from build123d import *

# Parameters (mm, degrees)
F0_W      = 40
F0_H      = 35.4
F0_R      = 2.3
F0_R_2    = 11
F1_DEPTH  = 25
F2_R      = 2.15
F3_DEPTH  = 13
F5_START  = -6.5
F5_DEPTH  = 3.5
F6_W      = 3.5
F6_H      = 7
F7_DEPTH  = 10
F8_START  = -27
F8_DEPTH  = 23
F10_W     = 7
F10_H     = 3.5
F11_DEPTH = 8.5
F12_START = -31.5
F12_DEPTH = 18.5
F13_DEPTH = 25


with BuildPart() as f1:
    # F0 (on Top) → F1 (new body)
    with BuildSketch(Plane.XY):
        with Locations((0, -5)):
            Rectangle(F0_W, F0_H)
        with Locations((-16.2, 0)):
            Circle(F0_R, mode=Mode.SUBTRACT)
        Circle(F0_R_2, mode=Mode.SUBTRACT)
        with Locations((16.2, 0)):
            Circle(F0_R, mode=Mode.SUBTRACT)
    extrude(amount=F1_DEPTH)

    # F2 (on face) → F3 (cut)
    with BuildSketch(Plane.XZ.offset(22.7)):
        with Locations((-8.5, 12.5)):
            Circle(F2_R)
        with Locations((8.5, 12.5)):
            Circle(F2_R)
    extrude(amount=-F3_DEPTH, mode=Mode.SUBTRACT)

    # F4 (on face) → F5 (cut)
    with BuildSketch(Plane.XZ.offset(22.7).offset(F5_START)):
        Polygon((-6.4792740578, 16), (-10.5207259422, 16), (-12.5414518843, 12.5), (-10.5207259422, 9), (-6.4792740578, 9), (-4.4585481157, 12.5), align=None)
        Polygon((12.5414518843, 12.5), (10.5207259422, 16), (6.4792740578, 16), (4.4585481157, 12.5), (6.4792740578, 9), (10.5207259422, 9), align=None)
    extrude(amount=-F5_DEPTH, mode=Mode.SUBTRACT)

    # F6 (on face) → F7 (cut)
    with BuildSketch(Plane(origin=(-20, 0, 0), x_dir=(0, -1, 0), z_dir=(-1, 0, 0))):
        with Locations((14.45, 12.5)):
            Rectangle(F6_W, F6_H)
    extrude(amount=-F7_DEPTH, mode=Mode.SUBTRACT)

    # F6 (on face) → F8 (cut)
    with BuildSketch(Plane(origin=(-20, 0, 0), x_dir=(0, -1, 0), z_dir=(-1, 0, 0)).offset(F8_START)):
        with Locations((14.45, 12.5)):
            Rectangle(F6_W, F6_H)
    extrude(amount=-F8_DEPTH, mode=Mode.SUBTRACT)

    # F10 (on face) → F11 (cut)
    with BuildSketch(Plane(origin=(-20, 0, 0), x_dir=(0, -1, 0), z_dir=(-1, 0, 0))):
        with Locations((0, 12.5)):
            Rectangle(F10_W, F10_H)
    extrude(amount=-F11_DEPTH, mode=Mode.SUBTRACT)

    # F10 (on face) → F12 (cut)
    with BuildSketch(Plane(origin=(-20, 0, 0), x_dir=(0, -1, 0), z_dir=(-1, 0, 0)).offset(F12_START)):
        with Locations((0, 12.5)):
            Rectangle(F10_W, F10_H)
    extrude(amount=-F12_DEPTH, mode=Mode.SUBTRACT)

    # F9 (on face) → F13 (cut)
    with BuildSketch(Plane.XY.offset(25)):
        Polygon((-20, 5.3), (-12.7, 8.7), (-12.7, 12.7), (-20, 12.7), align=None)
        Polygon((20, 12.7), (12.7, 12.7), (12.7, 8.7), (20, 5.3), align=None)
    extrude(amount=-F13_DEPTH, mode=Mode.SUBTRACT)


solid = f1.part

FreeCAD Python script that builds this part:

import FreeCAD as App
import Part
import Sketcher
Q = App.Units.Quantity

doc = App.newDocument("Part")
body = doc.addObject("PartDesign::Body", "Body")

# Sketch on XY plane
sketch1 = body.newObject("Sketcher::SketchObject", "Sketch")
sketch1.AttachmentSupport = (doc.getObject("XY_Plane"), [""])
sketch1.MapMode = "FlatFace"
sketch1.addGeometry(Part.LineSegment(App.Vector(-20, 12.7, 0), App.Vector(-20, -22.7, 0)), False)
sketch1.addGeometry(Part.LineSegment(App.Vector(-20, -22.7, 0), App.Vector(20, -22.7, 0)), False)
sketch1.addGeometry(Part.LineSegment(App.Vector(20, -22.7, 0), App.Vector(20, 12.7, 0)), False)
sketch1.addGeometry(Part.LineSegment(App.Vector(20, 12.7, 0), App.Vector(-20, 12.7, 0)), False)
sketch1.addGeometry(Part.Circle(App.Vector(-16.2, 0, 0), App.Vector(0, 0, 1), 2.3), False)
sketch1.addGeometry(Part.Circle(App.Vector(0, 0, 0), App.Vector(0, 0, 1), 11), False)
sketch1.addGeometry(Part.Circle(App.Vector(16.2, 0, 0), App.Vector(0, 0, 1), 2.3), False)
sketch1.addConstraint(Sketcher.Constraint("Coincident", 0, 2, 1, 1))
sketch1.addConstraint(Sketcher.Constraint("Coincident", 1, 2, 2, 1))
sketch1.addConstraint(Sketcher.Constraint("Coincident", 2, 2, 3, 1))
sketch1.addConstraint(Sketcher.Constraint("Coincident", 3, 2, 0, 1))
sketch1.addConstraint(Sketcher.Constraint("Vertical", 0))
sketch1.addConstraint(Sketcher.Constraint("Horizontal", 1))
sketch1.addConstraint(Sketcher.Constraint("Vertical", 2))
sketch1.addConstraint(Sketcher.Constraint("Horizontal", 3))
sketch1.addConstraint(Sketcher.Constraint("Coincident", 5, 3, -1, 1))
sketch1.addConstraint(Sketcher.Constraint("Equal", 4, 6))
sketch1.addConstraint(Sketcher.Constraint("Symmetric", 4, 3, 6, 3, -1, 1))
sketch1.addConstraint(Sketcher.Constraint("PointOnObject", 4, 3, -1))
sketch1.addConstraint(Sketcher.Constraint("Diameter", 5, 22.0))
sketch1.addConstraint(Sketcher.Constraint("Diameter", 4, 4.6))
sketch1.addConstraint(Sketcher.Constraint("DistanceX", 1, 1, 1, 2, 40.0))
sketch1.addConstraint(Sketcher.Constraint("DistanceY", 0, 2, 0, 1, 35.4))
sketch1.addConstraint(Sketcher.Constraint("DistanceX", 0, 2, -1, 1, 20.0))
sketch1.addConstraint(Sketcher.Constraint("DistanceX", 4, 3, -1, 1, 16.2))
sketch1.addConstraint(Sketcher.Constraint("DistanceY", 0, 2, -1, 1, 22.7))
pad1 = body.newObject("PartDesign::Pad", "Pad")
pad1.Profile = sketch1
pad1.Length = 25

# Sketch on XZ plane
sketch2 = body.newObject("Sketcher::SketchObject", "Sketch001")
sketch2.AttachmentSupport = (doc.getObject("XZ_Plane"), [""])
sketch2.MapMode = "FlatFace"
sketch2.AttachmentOffset = App.Placement(App.Vector(0, 0, 22.7), App.Rotation())
sketch2.addGeometry(Part.Circle(App.Vector(-8.5, 12.5, 0), App.Vector(0, 0, 1), 2.1), False)
sketch2.addGeometry(Part.Circle(App.Vector(8.5, 12.5, 0), App.Vector(0, 0, 1), 2.1), False)
sketch2.addConstraint(Sketcher.Constraint("Equal", 0, 1))
sketch2.addConstraint(Sketcher.Constraint("Symmetric", 0, 3, 1, 3, -2))
sketch2.addConstraint(Sketcher.Constraint("Diameter", 0, 4.3))
sketch2.addConstraint(Sketcher.Constraint("DistanceX", 0, 3, 1, 3, 17.0))
sketch2.addConstraint(Sketcher.Constraint("DistanceY", -1, 1, 0, 3, 12.5))
pocket1 = body.newObject("PartDesign::Pocket", "Pocket")
pocket1.Profile = sketch2
pocket1.Length = 13

# Sketch on XZ plane
sketch3 = body.newObject("Sketcher::SketchObject", "Sketch002")
sketch3.AttachmentSupport = (doc.getObject("XZ_Plane"), [""])
sketch3.MapMode = "FlatFace"
sketch3.AttachmentOffset = App.Placement(App.Vector(0, 0, 16.2), App.Rotation())
sketch3.addGeometry(Part.LineSegment(App.Vector(-6.5, 16, 0), App.Vector(-10.5, 16, 0)), False)
sketch3.addGeometry(Part.LineSegment(App.Vector(-10.5, 16, 0), App.Vector(-12.5, 12.5, 0)), False)
sketch3.addGeometry(Part.LineSegment(App.Vector(-12.5, 12.5, 0), App.Vector(-10.5, 9, 0)), False)
sketch3.addGeometry(Part.LineSegment(App.Vector(-10.5, 9, 0), App.Vector(-6.5, 9, 0)), False)
sketch3.addGeometry(Part.LineSegment(App.Vector(-6.5, 9, 0), App.Vector(-4.5, 12.5, 0)), False)
sketch3.addGeometry(Part.LineSegment(App.Vector(-4.5, 12.5, 0), App.Vector(-6.5, 16, 0)), False)
sketch3.addGeometry(Part.LineSegment(App.Vector(12.5, 12.5, 0), App.Vector(10.5, 16, 0)), False)
sketch3.addGeometry(Part.LineSegment(App.Vector(10.5, 16, 0), App.Vector(6.5, 16, 0)), False)
sketch3.addGeometry(Part.LineSegment(App.Vector(6.5, 16, 0), App.Vector(4.5, 12.5, 0)), False)
sketch3.addGeometry(Part.LineSegment(App.Vector(4.5, 12.5, 0), App.Vector(6.5, 9, 0)), False)
sketch3.addGeometry(Part.LineSegment(App.Vector(6.5, 9, 0), App.Vector(10.5, 9, 0)), False)
sketch3.addGeometry(Part.LineSegment(App.Vector(10.5, 9, 0), App.Vector(12.5, 12.5, 0)), False)
sketch3.addConstraint(Sketcher.Constraint("Coincident", 0, 2, 1, 1))
sketch3.addConstraint(Sketcher.Constraint("Coincident", 1, 2, 2, 1))
sketch3.addConstraint(Sketcher.Constraint("Coincident", 2, 2, 3, 1))
sketch3.addConstraint(Sketcher.Constraint("Coincident", 3, 2, 4, 1))
sketch3.addConstraint(Sketcher.Constraint("Coincident", 4, 2, 5, 1))
sketch3.addConstraint(Sketcher.Constraint("Coincident", 5, 2, 0, 1))
sketch3.addConstraint(Sketcher.Constraint("Coincident", 6, 2, 7, 1))
sketch3.addConstraint(Sketcher.Constraint("Coincident", 7, 2, 8, 1))
sketch3.addConstraint(Sketcher.Constraint("Coincident", 8, 2, 9, 1))
sketch3.addConstraint(Sketcher.Constraint("Coincident", 9, 2, 10, 1))
sketch3.addConstraint(Sketcher.Constraint("Coincident", 10, 2, 11, 1))
sketch3.addConstraint(Sketcher.Constraint("Coincident", 11, 2, 6, 1))
sketch3.addConstraint(Sketcher.Constraint("Horizontal", 0))
sketch3.addConstraint(Sketcher.Constraint("Horizontal", 3))
sketch3.addConstraint(Sketcher.Constraint("Horizontal", 7))
sketch3.addConstraint(Sketcher.Constraint("Horizontal", 10))
sketch3.addConstraint(Sketcher.Constraint("Symmetric", 0, 2, 6, 2, -2))
sketch3.addConstraint(Sketcher.Constraint("Symmetric", 4, 2, 8, 2, -2))
sketch3.addConstraint(Sketcher.Constraint("Symmetric", 3, 2, 9, 2, -2))
sketch3.addConstraint(Sketcher.Constraint("Symmetric", 1, 2, 11, 2, -2))
sketch3.addConstraint(Sketcher.Constraint("Parallel", 1, 4))
sketch3.addConstraint(Sketcher.Constraint("Parallel", 2, 5))
sketch3.addConstraint(Sketcher.Constraint("Parallel", 5, 6))
sketch3.addConstraint(Sketcher.Constraint("Parallel", 4, 8))
sketch3.addConstraint(Sketcher.Constraint("Parallel", 8, 11))
sketch3.addConstraint(Sketcher.Constraint("Horizontal", 1, 2, 4, 2))
sketch3.addConstraint(Sketcher.Constraint("Vertical", 0, 2, 2, 2))
sketch3.addConstraint(Sketcher.Constraint("Angle", 1, Q("-120 deg")))
sketch3.addConstraint(Sketcher.Constraint("DistanceY", -1, 1, 0, 2, 16.0))
sketch3.addConstraint(Sketcher.Constraint("DistanceY", -1, 1, 2, 2, 9.0))
sketch3.addConstraint(Sketcher.Constraint("DistanceX", 5, 2, 6, 2, 17.0))
sketch3.addConstraint(Sketcher.Constraint("DistanceX", 0, 2, 0, 1, 4.041452))
pocket2 = body.newObject("PartDesign::Pocket", "Pocket001")
pocket2.Profile = sketch3
pocket2.Length = 3.5

# Sketch on YZ plane
sketch4 = body.newObject("Sketcher::SketchObject", "Sketch003")
sketch4.AttachmentSupport = (doc.getObject("YZ_Plane"), [""])
sketch4.MapMode = "FlatFace"
sketch4.AttachmentOffset = App.Placement(App.Vector(0, 0, -20), App.Rotation())
sketch4.addGeometry(Part.LineSegment(App.Vector(-12.7, 16, 0), App.Vector(-12.7, 9, 0)), False)
sketch4.addGeometry(Part.LineSegment(App.Vector(-12.7, 9, 0), App.Vector(-16.2, 9, 0)), False)
sketch4.addGeometry(Part.LineSegment(App.Vector(-16.2, 9, 0), App.Vector(-16.2, 16, 0)), False)
sketch4.addGeometry(Part.LineSegment(App.Vector(-16.2, 16, 0), App.Vector(-12.7, 16, 0)), False)
sketch4.addConstraint(Sketcher.Constraint("Coincident", 0, 2, 1, 1))
sketch4.addConstraint(Sketcher.Constraint("Coincident", 1, 2, 2, 1))
sketch4.addConstraint(Sketcher.Constraint("Coincident", 2, 2, 3, 1))
sketch4.addConstraint(Sketcher.Constraint("Coincident", 3, 2, 0, 1))
sketch4.addConstraint(Sketcher.Constraint("Vertical", 0))
sketch4.addConstraint(Sketcher.Constraint("Horizontal", 1))
sketch4.addConstraint(Sketcher.Constraint("Vertical", 2))
sketch4.addConstraint(Sketcher.Constraint("Horizontal", 3))
sketch4.addConstraint(Sketcher.Constraint("DistanceY", 0, 2, 0, 1, 7.0))
sketch4.addConstraint(Sketcher.Constraint("DistanceX", 1, 2, 1, 1, 3.5))
sketch4.addConstraint(Sketcher.Constraint("DistanceY", -1, 1, 0, 2, 9.0))
sketch4.addConstraint(Sketcher.Constraint("DistanceX", 0, 2, -1, 1, 12.7))
pocket3 = body.newObject("PartDesign::Pocket", "Pocket002")
pocket3.Profile = sketch4
pocket3.Length = 10
pocket3.Reversed = True

# Sketch on YZ plane
sketch5 = body.newObject("Sketcher::SketchObject", "Sketch004")
sketch5.AttachmentSupport = (doc.getObject("YZ_Plane"), [""])
sketch5.MapMode = "FlatFace"
sketch5.AttachmentOffset = App.Placement(App.Vector(0, 0, 7), App.Rotation())
sketch5.addGeometry(Part.LineSegment(App.Vector(-12.7, 16, 0), App.Vector(-12.7, 9, 0)), False)
sketch5.addGeometry(Part.LineSegment(App.Vector(-12.7, 9, 0), App.Vector(-16.2, 9, 0)), False)
sketch5.addGeometry(Part.LineSegment(App.Vector(-16.2, 9, 0), App.Vector(-16.2, 16, 0)), False)
sketch5.addGeometry(Part.LineSegment(App.Vector(-16.2, 16, 0), App.Vector(-12.7, 16, 0)), False)
sketch5.addConstraint(Sketcher.Constraint("Coincident", 0, 2, 1, 1))
sketch5.addConstraint(Sketcher.Constraint("Coincident", 1, 2, 2, 1))
sketch5.addConstraint(Sketcher.Constraint("Coincident", 2, 2, 3, 1))
sketch5.addConstraint(Sketcher.Constraint("Coincident", 3, 2, 0, 1))
sketch5.addConstraint(Sketcher.Constraint("Vertical", 0))
sketch5.addConstraint(Sketcher.Constraint("Horizontal", 1))
sketch5.addConstraint(Sketcher.Constraint("Vertical", 2))
sketch5.addConstraint(Sketcher.Constraint("Horizontal", 3))
sketch5.addConstraint(Sketcher.Constraint("DistanceY", 0, 2, 0, 1, 7.0))
sketch5.addConstraint(Sketcher.Constraint("DistanceX", 1, 2, 1, 1, 3.5))
sketch5.addConstraint(Sketcher.Constraint("DistanceY", -1, 1, 0, 2, 9.0))
sketch5.addConstraint(Sketcher.Constraint("DistanceX", 0, 2, -1, 1, 12.7))
pocket4 = body.newObject("PartDesign::Pocket", "Pocket003")
pocket4.Profile = sketch5
pocket4.Length = 23
pocket4.Reversed = True

# Sketch on YZ plane
sketch6 = body.newObject("Sketcher::SketchObject", "Sketch005")
sketch6.AttachmentSupport = (doc.getObject("YZ_Plane"), [""])
sketch6.MapMode = "FlatFace"
sketch6.AttachmentOffset = App.Placement(App.Vector(0, 0, -20), App.Rotation())
sketch6.addGeometry(Part.LineSegment(App.Vector(3.5, 14.2, 0), App.Vector(3.5, 10.8, 0)), False)
sketch6.addGeometry(Part.LineSegment(App.Vector(3.5, 10.8, 0), App.Vector(-3.5, 10.8, 0)), False)
sketch6.addGeometry(Part.LineSegment(App.Vector(-3.5, 10.8, 0), App.Vector(-3.5, 14.2, 0)), False)
sketch6.addGeometry(Part.LineSegment(App.Vector(-3.5, 14.2, 0), App.Vector(3.5, 14.2, 0)), False)
sketch6.addConstraint(Sketcher.Constraint("Coincident", 0, 2, 1, 1))
sketch6.addConstraint(Sketcher.Constraint("Coincident", 1, 2, 2, 1))
sketch6.addConstraint(Sketcher.Constraint("Coincident", 2, 2, 3, 1))
sketch6.addConstraint(Sketcher.Constraint("Coincident", 3, 2, 0, 1))
sketch6.addConstraint(Sketcher.Constraint("Vertical", 0))
sketch6.addConstraint(Sketcher.Constraint("Horizontal", 1))
sketch6.addConstraint(Sketcher.Constraint("Vertical", 2))
sketch6.addConstraint(Sketcher.Constraint("Horizontal", 3))
sketch6.addConstraint(Sketcher.Constraint("DistanceX", 1, 2, 1, 1, 7.0))
sketch6.addConstraint(Sketcher.Constraint("DistanceY", 0, 2, 0, 1, 3.5))
sketch6.addConstraint(Sketcher.Constraint("DistanceX", -1, 1, 0, 2, 3.5))
sketch6.addConstraint(Sketcher.Constraint("DistanceY", -1, 1, 0, 2, 10.75))
pocket5 = body.newObject("PartDesign::Pocket", "Pocket004")
pocket5.Profile = sketch6
pocket5.Length = 8.5
pocket5.Reversed = True

# Sketch on YZ plane
sketch7 = body.newObject("Sketcher::SketchObject", "Sketch006")
sketch7.AttachmentSupport = (doc.getObject("YZ_Plane"), [""])
sketch7.MapMode = "FlatFace"
sketch7.AttachmentOffset = App.Placement(App.Vector(0, 0, 11.5), App.Rotation())
sketch7.addGeometry(Part.LineSegment(App.Vector(3.5, 14.2, 0), App.Vector(3.5, 10.8, 0)), False)
sketch7.addGeometry(Part.LineSegment(App.Vector(3.5, 10.8, 0), App.Vector(-3.5, 10.8, 0)), False)
sketch7.addGeometry(Part.LineSegment(App.Vector(-3.5, 10.8, 0), App.Vector(-3.5, 14.2, 0)), False)
sketch7.addGeometry(Part.LineSegment(App.Vector(-3.5, 14.2, 0), App.Vector(3.5, 14.2, 0)), False)
sketch7.addConstraint(Sketcher.Constraint("Coincident", 0, 2, 1, 1))
sketch7.addConstraint(Sketcher.Constraint("Coincident", 1, 2, 2, 1))
sketch7.addConstraint(Sketcher.Constraint("Coincident", 2, 2, 3, 1))
sketch7.addConstraint(Sketcher.Constraint("Coincident", 3, 2, 0, 1))
sketch7.addConstraint(Sketcher.Constraint("Vertical", 0))
sketch7.addConstraint(Sketcher.Constraint("Horizontal", 1))
sketch7.addConstraint(Sketcher.Constraint("Vertical", 2))
sketch7.addConstraint(Sketcher.Constraint("Horizontal", 3))
sketch7.addConstraint(Sketcher.Constraint("DistanceX", 1, 2, 1, 1, 7.0))
sketch7.addConstraint(Sketcher.Constraint("DistanceY", 0, 2, 0, 1, 3.5))
sketch7.addConstraint(Sketcher.Constraint("DistanceX", -1, 1, 0, 2, 3.5))
sketch7.addConstraint(Sketcher.Constraint("DistanceY", -1, 1, 0, 2, 10.75))
pocket6 = body.newObject("PartDesign::Pocket", "Pocket005")
pocket6.Profile = sketch7
pocket6.Length = 18.5
pocket6.Reversed = True

# Sketch on XY plane
sketch8 = body.newObject("Sketcher::SketchObject", "Sketch007")
sketch8.AttachmentSupport = (doc.getObject("XY_Plane"), [""])
sketch8.MapMode = "FlatFace"
sketch8.AttachmentOffset = App.Placement(App.Vector(0, 0, 25), App.Rotation())
sketch8.addGeometry(Part.LineSegment(App.Vector(-20, 5.3, 0), App.Vector(-12.7, 8.7, 0)), False)
sketch8.addGeometry(Part.LineSegment(App.Vector(-12.7, 8.7, 0), App.Vector(-12.7, 12.7, 0)), False)
sketch8.addGeometry(Part.LineSegment(App.Vector(-12.7, 12.7, 0), App.Vector(-20, 12.7, 0)), False)
sketch8.addGeometry(Part.LineSegment(App.Vector(-20, 12.7, 0), App.Vector(-20, 5.3, 0)), False)
sketch8.addGeometry(Part.LineSegment(App.Vector(20, 12.7, 0), App.Vector(12.7, 12.7, 0)), False)
sketch8.addGeometry(Part.LineSegment(App.Vector(12.7, 12.7, 0), App.Vector(12.7, 8.7, 0)), False)
sketch8.addGeometry(Part.LineSegment(App.Vector(12.7, 8.7, 0), App.Vector(20, 5.3, 0)), False)
sketch8.addGeometry(Part.LineSegment(App.Vector(20, 5.3, 0), App.Vector(20, 12.7, 0)), False)
sketch8.addConstraint(Sketcher.Constraint("Coincident", 0, 2, 1, 1))
sketch8.addConstraint(Sketcher.Constraint("Coincident", 1, 2, 2, 1))
sketch8.addConstraint(Sketcher.Constraint("Coincident", 2, 2, 3, 1))
sketch8.addConstraint(Sketcher.Constraint("Coincident", 3, 2, 0, 1))
sketch8.addConstraint(Sketcher.Constraint("Coincident", 4, 2, 5, 1))
sketch8.addConstraint(Sketcher.Constraint("Coincident", 5, 2, 6, 1))
sketch8.addConstraint(Sketcher.Constraint("Coincident", 6, 2, 7, 1))
sketch8.addConstraint(Sketcher.Constraint("Coincident", 7, 2, 4, 1))
sketch8.addConstraint(Sketcher.Constraint("Vertical", 1))
sketch8.addConstraint(Sketcher.Constraint("Horizontal", 2))
sketch8.addConstraint(Sketcher.Constraint("Vertical", 3))
sketch8.addConstraint(Sketcher.Constraint("Horizontal", 4))
sketch8.addConstraint(Sketcher.Constraint("Vertical", 5))
sketch8.addConstraint(Sketcher.Constraint("Vertical", 7))
sketch8.addConstraint(Sketcher.Constraint("Symmetric", 1, 2, 4, 2, -2))
sketch8.addConstraint(Sketcher.Constraint("Symmetric", 3, 2, 6, 2, -2))
sketch8.addConstraint(Sketcher.Constraint("Horizontal", 0, 2, 5, 2))
sketch8.addConstraint(Sketcher.Constraint("DistanceY", 1, 1, 1, 2, 4.0))
sketch8.addConstraint(Sketcher.Constraint("DistanceX", 2, 2, 2, 1, 7.3))
sketch8.addConstraint(Sketcher.Constraint("DistanceY", 3, 2, 3, 1, 7.4))
sketch8.addConstraint(Sketcher.Constraint("DistanceX", 2, 2, -1, 1, 20.0))
sketch8.addConstraint(Sketcher.Constraint("DistanceY", -1, 1, 0, 2, 8.7))
pocket7 = body.newObject("PartDesign::Pocket", "Pocket006")
pocket7.Profile = sketch8
pocket7.Length = 25

doc.recompute()
